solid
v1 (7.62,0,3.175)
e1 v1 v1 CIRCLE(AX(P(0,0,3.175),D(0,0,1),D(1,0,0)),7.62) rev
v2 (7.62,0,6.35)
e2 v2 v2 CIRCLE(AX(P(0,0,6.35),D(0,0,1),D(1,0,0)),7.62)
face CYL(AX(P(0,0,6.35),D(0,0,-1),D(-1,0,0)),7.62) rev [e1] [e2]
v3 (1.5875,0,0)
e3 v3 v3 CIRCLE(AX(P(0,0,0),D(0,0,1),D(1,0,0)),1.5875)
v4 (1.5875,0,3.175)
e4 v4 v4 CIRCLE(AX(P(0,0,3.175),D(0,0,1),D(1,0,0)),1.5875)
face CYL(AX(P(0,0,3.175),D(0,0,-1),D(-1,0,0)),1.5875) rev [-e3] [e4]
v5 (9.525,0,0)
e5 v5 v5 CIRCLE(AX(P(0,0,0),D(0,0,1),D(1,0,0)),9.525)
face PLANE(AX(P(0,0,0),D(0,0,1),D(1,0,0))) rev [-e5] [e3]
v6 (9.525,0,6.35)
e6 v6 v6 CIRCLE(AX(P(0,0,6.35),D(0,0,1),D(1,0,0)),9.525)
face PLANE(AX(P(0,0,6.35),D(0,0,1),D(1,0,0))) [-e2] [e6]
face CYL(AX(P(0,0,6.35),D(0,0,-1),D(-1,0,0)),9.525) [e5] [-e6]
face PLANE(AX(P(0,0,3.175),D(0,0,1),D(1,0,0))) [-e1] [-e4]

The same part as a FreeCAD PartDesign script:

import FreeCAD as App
import Part
import Sketcher
Q = App.Units.Quantity

doc = App.newDocument("Part")
body = doc.addObject("PartDesign::Body", "Body")

# Sketch on XY plane
sketch1 = body.newObject("Sketcher::SketchObject", "Sketch")
sketch1.AttachmentSupport = (doc.getObject("XY_Plane"), [""])
sketch1.MapMode = "FlatFace"
sketch1.addGeometry(Part.Circle(App.Vector(0, 0, 0), App.Vector(0, 0, 1), 7.62), False)
sketch1.addGeometry(Part.Circle(App.Vector(0, 0, 0), App.Vector(0, 0, 1), 1.5875), False)
sketch1.addConstraint(Sketcher.Constraint("Coincident", 0, 3, -1, 1))
sketch1.addConstraint(Sketcher.Constraint("Coincident", 1, 3, -1, 1))
sketch1.addConstraint(Sketcher.Constraint("Diameter", 0, Q("0.6 in")))
sketch1.addConstraint(Sketcher.Constraint("Diameter", 1, Q("0.125 in")))
pad1 = body.newObject("PartDesign::Pad", "Pad")
pad1.Profile = sketch1
pad1.Length = Q("0.125 in")

# Sketch on XY plane
sketch2 = body.newObject("Sketcher::SketchObject", "Sketch001")
sketch2.AttachmentSupport = (doc.getObject("XY_Plane"), [""])
sketch2.MapMode = "FlatFace"
sketch2.addGeometry(Part.Circle(App.Vector(0, 0, 0), App.Vector(0, 0, 1), 9.525), False)
sketch2.addGeometry(Part.Circle(App.Vector(0, 0, 0), App.Vector(0, 0, 1), 7.62), False)
sketch2.addConstraint(Sketcher.Constraint("Coincident", 0, 3, -1, 1))
sketch2.addConstraint(Sketcher.Constraint("Coincident", 1, 3, -1, 1))
sketch2.addConstraint(Sketcher.Constraint("Diameter", 1, Q("0.6 in")))
sketch2.addConstraint(Sketcher.Constraint("Diameter", 0, Q("0.75 in")))
pad2 = body.newObject("PartDesign::Pad", "Pad001")
pad2.Profile = sketch2
pad2.Length = Q("0.25 in")

doc.recompute()
